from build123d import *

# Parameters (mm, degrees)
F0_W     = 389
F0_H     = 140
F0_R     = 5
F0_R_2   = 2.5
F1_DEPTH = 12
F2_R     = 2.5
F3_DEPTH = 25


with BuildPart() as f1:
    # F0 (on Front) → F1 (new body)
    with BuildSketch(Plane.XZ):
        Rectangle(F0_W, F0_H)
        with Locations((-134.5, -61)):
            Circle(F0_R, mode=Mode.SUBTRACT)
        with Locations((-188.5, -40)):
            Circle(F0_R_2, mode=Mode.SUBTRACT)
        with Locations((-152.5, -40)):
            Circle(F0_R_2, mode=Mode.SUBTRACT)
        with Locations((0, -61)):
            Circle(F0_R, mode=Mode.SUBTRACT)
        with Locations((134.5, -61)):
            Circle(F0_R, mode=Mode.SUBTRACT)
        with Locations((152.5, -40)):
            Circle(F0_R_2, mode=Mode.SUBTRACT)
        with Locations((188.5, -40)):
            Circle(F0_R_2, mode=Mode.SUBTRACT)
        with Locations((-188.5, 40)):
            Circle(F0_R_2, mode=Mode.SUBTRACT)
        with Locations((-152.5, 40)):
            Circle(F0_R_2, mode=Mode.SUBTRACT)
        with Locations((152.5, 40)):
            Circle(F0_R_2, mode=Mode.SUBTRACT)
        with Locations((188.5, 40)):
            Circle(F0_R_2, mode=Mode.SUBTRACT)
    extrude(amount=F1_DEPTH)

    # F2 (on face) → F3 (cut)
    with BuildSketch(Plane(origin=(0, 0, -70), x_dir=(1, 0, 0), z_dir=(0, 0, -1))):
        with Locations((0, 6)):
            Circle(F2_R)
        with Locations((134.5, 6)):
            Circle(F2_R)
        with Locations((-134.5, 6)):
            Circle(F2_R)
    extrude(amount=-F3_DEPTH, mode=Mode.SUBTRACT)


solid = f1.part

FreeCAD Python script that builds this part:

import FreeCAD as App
import Part
import Sketcher
from FreeCAD import Vector


def add_polygon(sketch, points):
    """Adds a closed chain of lines whose ends are joined by coincident constraints."""
    first, n = sketch.GeometryCount, len(points)
    for a, b in zip(points, points[1:] + points[:1]):
        sketch.addGeometry(Part.LineSegment(App.Vector(*a, 0), App.Vector(*b, 0)), False)
    for i in range(n):
        sketch.addConstraint(Sketcher.Constraint("Coincident", first + i, 2, first + (i + 1) % n, 1))

doc = App.newDocument("Part")
body = doc.addObject("PartDesign::Body", "Body")

# Sketch on XZ plane
sketch1 = body.newObject("Sketcher::SketchObject", "Sketch")
sketch1.AttachmentSupport = (doc.getObject("XZ_Plane"), [""])
sketch1.MapMode = "FlatFace"
add_polygon(sketch1, [(-194.5, 70), (-194.5, -70), (194.5, -70), (194.5, 70)])  # lines 0-3
sketch1.addGeometry(Part.Circle(Vector(-134.5, -61, 0), Vector(0, 0, 1), 5), False)  # 4
sketch1.addGeometry(Part.Circle(Vector(-188.5, -40, 0), Vector(0, 0, 1), 2.5), False)  # 5
sketch1.addGeometry(Part.Circle(Vector(-152.5, -40, 0), Vector(0, 0, 1), 2.5), False)  # 6
sketch1.addGeometry(Part.Circle(Vector(0, -61, 0), Vector(0, 0, 1), 5), False)  # 7
sketch1.addGeometry(Part.Circle(Vector(134.5, -61, 0), Vector(0, 0, 1), 5), False)  # 8
sketch1.addGeometry(Part.Circle(Vector(152.5, -40, 0), Vector(0, 0, 1), 2.5), False)  # 9
sketch1.addGeometry(Part.Circle(Vector(188.5, -40, 0), Vector(0, 0, 1), 2.5), False)  # 10
sketch1.addGeometry(Part.Circle(Vector(-188.5, 40, 0), Vector(0, 0, 1), 2.5), False)  # 11
sketch1.addGeometry(Part.Circle(Vector(-152.5, 40, 0), Vector(0, 0, 1), 2.5), False)  # 12
sketch1.addGeometry(Part.Circle(Vector(152.5, 40, 0), Vector(0, 0, 1), 2.5), False)  # 13
sketch1.addGeometry(Part.Circle(Vector(188.5, 40, 0), Vector(0, 0, 1), 2.5), False)  # 14
sketch1.addConstraint([
    Sketcher.Constraint("Vertical", 0),
    Sketcher.Constraint("Horizontal", 1),
    Sketcher.Constraint("Vertical", 2),
    Sketcher.Constraint("Horizontal", 3),
    Sketcher.Constraint("Equal", 5, 6),
    Sketcher.Constraint("Equal", 4, 7),
    Sketcher.Constraint("Equal", 7, 8),
    Sketcher.Constraint("Equal", 6, 9),
    Sketcher.Constraint("Equal", 9, 10),
    Sketcher.Constraint("Equal", 10, 11),
    Sketcher.Constraint("Equal", 11, 12),
    Sketcher.Constraint("Equal", 12, 13),
    Sketcher.Constraint("Equal", 13, 14),
    Sketcher.Constraint("Symmetric", 10, 3, 11, 3, -1, 1),
    Sketcher.Constraint("Symmetric", 9, 3, 12, 3, -1, 1),
    Sketcher.Constraint("Symmetric", 6, 3, 13, 3, -1, 1),
    Sketcher.Constraint("Symmetric", 5, 3, 14, 3, -1, 1),
    Sketcher.Constraint("Symmetric", 0, 2, 2, 2, -1, 1),
    Sketcher.Constraint("Symmetric", 4, 3, 8, 3, -2),
    Sketcher.Constraint("Symmetric", 6, 3, 9, 3, -2),
    Sketcher.Constraint("Symmetric", 5, 3, 10, 3, -2),
    Sketcher.Constraint("PointOnObject", 7, 3, -2),
    Sketcher.Constraint("Horizontal", 5, 3, 6, 3),
    Sketcher.Constraint("Horizontal", 4, 3, 7, 3),
    Sketcher.Constraint("Diameter", 4, 10.0),
    Sketcher.Constraint("Diameter", 5, 5.0),
    Sketcher.Constraint("DistanceX", 1, 1, 1, 2, 389.0),
    Sketcher.Constraint("DistanceY", 0, 2, 0, 1, 140.0),
    Sketcher.Constraint("DistanceY", 4, 3, -1, 1, 61.0),
    Sketcher.Constraint("DistanceY", 5, 3, -1, 1, 40.0),
    Sketcher.Constraint("DistanceX", 5, 3, 4, 3, 54.0),
    Sketcher.Constraint("DistanceX", 6, 3, 4, 3, 18.0),
    Sketcher.Constraint("DistanceX", 4, 3, 8, 3, 269.0),
])
pad1 = body.newObject("PartDesign::Pad", "Pad")
pad1.Profile = sketch1
pad1.Length = 12

# Sketch on XY plane
sketch2 = body.newObject("Sketcher::SketchObject", "Sketch001")
sketch2.AttachmentSupport = (doc.getObject("XY_Plane"), [""])
sketch2.MapMode = "FlatFace"
sketch2.AttachmentOffset = App.Placement(Vector(0, 0, -70), App.Rotation())
sketch2.addGeometry([
    Part.Circle(Vector(0, -6, 0), Vector(0, 0, 1), 2.5),
    Part.Circle(Vector(134.5, -6, 0), Vector(0, 0, 1), 2.5),
    Part.Circle(Vector(-134.5, -6, 0), Vector(0, 0, 1), 2.5),
], False)
sketch2.addConstraint([
    Sketcher.Constraint("Equal", 0, 1),
    Sketcher.Constraint("Equal", 1, 2),
    Sketcher.Constraint("Symmetric", 1, 3, 2, 3, -2),
    Sketcher.Constraint("PointOnObject", 0, 3, -2),
    Sketcher.Constraint("Horizontal", 0, 3, 1, 3),
    Sketcher.Constraint("Diameter", 0, 5.0),
    Sketcher.Constraint("DistanceY", 0, 3, -1, 1, 6.0),
    Sketcher.Constraint("DistanceX", 2, 3, 1, 3, 269.0),
])
pocket1 = body.newObject("PartDesign::Pocket", "Pocket")
pocket1.Profile = sketch2
pocket1.Length = 25
pocket1.Reversed = True

doc.recompute()
